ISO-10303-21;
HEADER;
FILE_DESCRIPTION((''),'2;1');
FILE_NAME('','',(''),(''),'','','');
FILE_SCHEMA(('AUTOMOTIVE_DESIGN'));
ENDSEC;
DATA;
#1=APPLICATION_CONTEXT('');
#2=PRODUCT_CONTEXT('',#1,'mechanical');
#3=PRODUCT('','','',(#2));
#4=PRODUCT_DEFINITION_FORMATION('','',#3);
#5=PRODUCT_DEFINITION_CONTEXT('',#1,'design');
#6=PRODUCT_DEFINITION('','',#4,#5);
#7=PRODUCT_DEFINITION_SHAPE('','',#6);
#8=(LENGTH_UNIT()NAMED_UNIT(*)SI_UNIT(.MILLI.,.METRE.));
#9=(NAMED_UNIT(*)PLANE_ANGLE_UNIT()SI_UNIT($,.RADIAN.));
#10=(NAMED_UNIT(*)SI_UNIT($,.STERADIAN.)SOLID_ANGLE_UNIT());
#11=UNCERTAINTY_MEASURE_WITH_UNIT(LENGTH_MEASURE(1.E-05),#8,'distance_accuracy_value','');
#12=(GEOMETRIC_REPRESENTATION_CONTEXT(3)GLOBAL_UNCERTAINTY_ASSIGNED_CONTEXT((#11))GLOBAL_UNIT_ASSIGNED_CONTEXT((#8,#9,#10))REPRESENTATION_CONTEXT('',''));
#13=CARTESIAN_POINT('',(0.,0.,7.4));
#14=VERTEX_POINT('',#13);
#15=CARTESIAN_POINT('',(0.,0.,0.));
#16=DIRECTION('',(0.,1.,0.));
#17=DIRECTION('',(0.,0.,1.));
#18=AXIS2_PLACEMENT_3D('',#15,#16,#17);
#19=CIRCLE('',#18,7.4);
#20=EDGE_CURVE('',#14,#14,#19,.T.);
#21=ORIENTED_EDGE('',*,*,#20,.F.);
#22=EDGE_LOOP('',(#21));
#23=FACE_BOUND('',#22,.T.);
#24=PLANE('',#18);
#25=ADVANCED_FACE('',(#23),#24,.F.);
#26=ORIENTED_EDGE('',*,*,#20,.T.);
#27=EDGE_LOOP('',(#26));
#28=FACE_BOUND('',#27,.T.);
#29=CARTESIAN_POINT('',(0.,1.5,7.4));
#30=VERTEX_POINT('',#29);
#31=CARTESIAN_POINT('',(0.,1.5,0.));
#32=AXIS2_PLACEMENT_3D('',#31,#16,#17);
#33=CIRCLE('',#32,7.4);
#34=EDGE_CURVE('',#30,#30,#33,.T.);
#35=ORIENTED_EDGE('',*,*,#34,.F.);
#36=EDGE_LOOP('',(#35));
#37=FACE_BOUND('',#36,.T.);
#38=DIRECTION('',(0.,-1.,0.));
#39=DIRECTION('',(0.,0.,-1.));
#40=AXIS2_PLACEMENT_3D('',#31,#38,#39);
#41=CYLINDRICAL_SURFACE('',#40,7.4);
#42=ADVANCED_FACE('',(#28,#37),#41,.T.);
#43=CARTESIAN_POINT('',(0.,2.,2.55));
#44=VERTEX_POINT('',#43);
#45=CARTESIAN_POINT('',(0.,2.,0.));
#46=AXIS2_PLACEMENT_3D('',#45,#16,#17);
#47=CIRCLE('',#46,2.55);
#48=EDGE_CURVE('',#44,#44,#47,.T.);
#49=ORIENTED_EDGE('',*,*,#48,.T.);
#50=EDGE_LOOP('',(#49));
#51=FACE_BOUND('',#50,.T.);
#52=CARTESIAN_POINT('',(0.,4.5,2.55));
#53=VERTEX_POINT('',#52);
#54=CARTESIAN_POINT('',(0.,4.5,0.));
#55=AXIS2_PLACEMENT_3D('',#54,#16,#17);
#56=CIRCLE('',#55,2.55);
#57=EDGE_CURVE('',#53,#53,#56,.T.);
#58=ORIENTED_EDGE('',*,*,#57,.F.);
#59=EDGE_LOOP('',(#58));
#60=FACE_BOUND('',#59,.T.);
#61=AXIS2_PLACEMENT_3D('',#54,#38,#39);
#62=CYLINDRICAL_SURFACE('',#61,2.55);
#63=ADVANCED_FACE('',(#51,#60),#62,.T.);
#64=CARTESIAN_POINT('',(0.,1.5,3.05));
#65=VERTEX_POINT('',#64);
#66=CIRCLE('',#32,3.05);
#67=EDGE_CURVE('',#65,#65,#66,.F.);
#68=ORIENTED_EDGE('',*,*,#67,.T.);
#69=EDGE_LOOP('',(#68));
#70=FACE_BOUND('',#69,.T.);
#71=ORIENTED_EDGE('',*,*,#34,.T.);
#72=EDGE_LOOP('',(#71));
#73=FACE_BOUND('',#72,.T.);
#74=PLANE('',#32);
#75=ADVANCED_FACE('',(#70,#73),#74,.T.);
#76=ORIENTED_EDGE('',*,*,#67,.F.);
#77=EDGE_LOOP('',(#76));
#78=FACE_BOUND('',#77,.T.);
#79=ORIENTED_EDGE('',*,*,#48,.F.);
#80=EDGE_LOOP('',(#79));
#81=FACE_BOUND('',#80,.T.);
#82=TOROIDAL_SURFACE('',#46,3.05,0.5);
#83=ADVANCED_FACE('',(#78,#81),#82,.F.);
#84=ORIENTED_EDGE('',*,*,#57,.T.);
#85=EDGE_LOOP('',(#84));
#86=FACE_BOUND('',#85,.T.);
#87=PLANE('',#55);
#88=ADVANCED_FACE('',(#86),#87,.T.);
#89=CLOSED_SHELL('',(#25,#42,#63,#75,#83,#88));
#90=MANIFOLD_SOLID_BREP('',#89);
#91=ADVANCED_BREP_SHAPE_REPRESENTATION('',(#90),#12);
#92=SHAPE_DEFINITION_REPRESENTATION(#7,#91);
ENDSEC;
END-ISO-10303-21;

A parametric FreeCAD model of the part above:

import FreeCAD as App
import Part
import Sketcher
from FreeCAD import Vector


def edges_at(feature, points):
    """Names of the edges that pass closest to the given points."""
    edges = feature.Shape.Edges
    near = lambda p: min(range(len(edges)), key=lambda i: edges[i].distToShape(Part.Vertex(*p))[0])
    return sorted({f"Edge{near(p) + 1}" for p in points})

doc = App.newDocument("Part")
body = doc.addObject("PartDesign::Body", "Body")

# Sketch on XZ plane
sketch1 = body.newObject("Sketcher::SketchObject", "Sketch")
sketch1.AttachmentSupport = (doc.getObject("XZ_Plane"), [""])
sketch1.MapMode = "FlatFace"
sketch1.addGeometry(Part.Circle(Vector(0, 0, 0), Vector(0, 0, 1), 7.4), False)
sketch1.addConstraint([
    Sketcher.Constraint("Coincident", 0, 3, -1, 1),
    Sketcher.Constraint("Diameter", 0, 14.8),
])
pad1 = body.newObject("PartDesign::Pad", "Pad")
pad1.Profile = sketch1
pad1.Length = 1.5
pad1.Reversed = True

# Sketch on XZ plane
sketch2 = body.newObject("Sketcher::SketchObject", "Sketch001")
sketch2.AttachmentSupport = (doc.getObject("XZ_Plane"), [""])
sketch2.MapMode = "FlatFace"
sketch2.AttachmentOffset = App.Placement(Vector(0, 0, -1.5), App.Rotation())
sketch2.addGeometry(Part.Circle(Vector(0, 0, 0), Vector(0, 0, 1), 2.55), False)
sketch2.addConstraint([
    Sketcher.Constraint("Coincident", 0, 3, -1, 1),
    Sketcher.Constraint("Diameter", 0, 5.1),
])
pad2 = body.newObject("PartDesign::Pad", "Pad001")
pad2.Profile = sketch2
pad2.Length = 3
pad2.Reversed = True
doc.recompute()

fillet = body.newObject("PartDesign::Fillet", "Fillet")
fillet.Base = (pad2, edges_at(pad2, [(0, 1.5, -2.55)]))
fillet.Radius = 0.5

doc.recompute()
